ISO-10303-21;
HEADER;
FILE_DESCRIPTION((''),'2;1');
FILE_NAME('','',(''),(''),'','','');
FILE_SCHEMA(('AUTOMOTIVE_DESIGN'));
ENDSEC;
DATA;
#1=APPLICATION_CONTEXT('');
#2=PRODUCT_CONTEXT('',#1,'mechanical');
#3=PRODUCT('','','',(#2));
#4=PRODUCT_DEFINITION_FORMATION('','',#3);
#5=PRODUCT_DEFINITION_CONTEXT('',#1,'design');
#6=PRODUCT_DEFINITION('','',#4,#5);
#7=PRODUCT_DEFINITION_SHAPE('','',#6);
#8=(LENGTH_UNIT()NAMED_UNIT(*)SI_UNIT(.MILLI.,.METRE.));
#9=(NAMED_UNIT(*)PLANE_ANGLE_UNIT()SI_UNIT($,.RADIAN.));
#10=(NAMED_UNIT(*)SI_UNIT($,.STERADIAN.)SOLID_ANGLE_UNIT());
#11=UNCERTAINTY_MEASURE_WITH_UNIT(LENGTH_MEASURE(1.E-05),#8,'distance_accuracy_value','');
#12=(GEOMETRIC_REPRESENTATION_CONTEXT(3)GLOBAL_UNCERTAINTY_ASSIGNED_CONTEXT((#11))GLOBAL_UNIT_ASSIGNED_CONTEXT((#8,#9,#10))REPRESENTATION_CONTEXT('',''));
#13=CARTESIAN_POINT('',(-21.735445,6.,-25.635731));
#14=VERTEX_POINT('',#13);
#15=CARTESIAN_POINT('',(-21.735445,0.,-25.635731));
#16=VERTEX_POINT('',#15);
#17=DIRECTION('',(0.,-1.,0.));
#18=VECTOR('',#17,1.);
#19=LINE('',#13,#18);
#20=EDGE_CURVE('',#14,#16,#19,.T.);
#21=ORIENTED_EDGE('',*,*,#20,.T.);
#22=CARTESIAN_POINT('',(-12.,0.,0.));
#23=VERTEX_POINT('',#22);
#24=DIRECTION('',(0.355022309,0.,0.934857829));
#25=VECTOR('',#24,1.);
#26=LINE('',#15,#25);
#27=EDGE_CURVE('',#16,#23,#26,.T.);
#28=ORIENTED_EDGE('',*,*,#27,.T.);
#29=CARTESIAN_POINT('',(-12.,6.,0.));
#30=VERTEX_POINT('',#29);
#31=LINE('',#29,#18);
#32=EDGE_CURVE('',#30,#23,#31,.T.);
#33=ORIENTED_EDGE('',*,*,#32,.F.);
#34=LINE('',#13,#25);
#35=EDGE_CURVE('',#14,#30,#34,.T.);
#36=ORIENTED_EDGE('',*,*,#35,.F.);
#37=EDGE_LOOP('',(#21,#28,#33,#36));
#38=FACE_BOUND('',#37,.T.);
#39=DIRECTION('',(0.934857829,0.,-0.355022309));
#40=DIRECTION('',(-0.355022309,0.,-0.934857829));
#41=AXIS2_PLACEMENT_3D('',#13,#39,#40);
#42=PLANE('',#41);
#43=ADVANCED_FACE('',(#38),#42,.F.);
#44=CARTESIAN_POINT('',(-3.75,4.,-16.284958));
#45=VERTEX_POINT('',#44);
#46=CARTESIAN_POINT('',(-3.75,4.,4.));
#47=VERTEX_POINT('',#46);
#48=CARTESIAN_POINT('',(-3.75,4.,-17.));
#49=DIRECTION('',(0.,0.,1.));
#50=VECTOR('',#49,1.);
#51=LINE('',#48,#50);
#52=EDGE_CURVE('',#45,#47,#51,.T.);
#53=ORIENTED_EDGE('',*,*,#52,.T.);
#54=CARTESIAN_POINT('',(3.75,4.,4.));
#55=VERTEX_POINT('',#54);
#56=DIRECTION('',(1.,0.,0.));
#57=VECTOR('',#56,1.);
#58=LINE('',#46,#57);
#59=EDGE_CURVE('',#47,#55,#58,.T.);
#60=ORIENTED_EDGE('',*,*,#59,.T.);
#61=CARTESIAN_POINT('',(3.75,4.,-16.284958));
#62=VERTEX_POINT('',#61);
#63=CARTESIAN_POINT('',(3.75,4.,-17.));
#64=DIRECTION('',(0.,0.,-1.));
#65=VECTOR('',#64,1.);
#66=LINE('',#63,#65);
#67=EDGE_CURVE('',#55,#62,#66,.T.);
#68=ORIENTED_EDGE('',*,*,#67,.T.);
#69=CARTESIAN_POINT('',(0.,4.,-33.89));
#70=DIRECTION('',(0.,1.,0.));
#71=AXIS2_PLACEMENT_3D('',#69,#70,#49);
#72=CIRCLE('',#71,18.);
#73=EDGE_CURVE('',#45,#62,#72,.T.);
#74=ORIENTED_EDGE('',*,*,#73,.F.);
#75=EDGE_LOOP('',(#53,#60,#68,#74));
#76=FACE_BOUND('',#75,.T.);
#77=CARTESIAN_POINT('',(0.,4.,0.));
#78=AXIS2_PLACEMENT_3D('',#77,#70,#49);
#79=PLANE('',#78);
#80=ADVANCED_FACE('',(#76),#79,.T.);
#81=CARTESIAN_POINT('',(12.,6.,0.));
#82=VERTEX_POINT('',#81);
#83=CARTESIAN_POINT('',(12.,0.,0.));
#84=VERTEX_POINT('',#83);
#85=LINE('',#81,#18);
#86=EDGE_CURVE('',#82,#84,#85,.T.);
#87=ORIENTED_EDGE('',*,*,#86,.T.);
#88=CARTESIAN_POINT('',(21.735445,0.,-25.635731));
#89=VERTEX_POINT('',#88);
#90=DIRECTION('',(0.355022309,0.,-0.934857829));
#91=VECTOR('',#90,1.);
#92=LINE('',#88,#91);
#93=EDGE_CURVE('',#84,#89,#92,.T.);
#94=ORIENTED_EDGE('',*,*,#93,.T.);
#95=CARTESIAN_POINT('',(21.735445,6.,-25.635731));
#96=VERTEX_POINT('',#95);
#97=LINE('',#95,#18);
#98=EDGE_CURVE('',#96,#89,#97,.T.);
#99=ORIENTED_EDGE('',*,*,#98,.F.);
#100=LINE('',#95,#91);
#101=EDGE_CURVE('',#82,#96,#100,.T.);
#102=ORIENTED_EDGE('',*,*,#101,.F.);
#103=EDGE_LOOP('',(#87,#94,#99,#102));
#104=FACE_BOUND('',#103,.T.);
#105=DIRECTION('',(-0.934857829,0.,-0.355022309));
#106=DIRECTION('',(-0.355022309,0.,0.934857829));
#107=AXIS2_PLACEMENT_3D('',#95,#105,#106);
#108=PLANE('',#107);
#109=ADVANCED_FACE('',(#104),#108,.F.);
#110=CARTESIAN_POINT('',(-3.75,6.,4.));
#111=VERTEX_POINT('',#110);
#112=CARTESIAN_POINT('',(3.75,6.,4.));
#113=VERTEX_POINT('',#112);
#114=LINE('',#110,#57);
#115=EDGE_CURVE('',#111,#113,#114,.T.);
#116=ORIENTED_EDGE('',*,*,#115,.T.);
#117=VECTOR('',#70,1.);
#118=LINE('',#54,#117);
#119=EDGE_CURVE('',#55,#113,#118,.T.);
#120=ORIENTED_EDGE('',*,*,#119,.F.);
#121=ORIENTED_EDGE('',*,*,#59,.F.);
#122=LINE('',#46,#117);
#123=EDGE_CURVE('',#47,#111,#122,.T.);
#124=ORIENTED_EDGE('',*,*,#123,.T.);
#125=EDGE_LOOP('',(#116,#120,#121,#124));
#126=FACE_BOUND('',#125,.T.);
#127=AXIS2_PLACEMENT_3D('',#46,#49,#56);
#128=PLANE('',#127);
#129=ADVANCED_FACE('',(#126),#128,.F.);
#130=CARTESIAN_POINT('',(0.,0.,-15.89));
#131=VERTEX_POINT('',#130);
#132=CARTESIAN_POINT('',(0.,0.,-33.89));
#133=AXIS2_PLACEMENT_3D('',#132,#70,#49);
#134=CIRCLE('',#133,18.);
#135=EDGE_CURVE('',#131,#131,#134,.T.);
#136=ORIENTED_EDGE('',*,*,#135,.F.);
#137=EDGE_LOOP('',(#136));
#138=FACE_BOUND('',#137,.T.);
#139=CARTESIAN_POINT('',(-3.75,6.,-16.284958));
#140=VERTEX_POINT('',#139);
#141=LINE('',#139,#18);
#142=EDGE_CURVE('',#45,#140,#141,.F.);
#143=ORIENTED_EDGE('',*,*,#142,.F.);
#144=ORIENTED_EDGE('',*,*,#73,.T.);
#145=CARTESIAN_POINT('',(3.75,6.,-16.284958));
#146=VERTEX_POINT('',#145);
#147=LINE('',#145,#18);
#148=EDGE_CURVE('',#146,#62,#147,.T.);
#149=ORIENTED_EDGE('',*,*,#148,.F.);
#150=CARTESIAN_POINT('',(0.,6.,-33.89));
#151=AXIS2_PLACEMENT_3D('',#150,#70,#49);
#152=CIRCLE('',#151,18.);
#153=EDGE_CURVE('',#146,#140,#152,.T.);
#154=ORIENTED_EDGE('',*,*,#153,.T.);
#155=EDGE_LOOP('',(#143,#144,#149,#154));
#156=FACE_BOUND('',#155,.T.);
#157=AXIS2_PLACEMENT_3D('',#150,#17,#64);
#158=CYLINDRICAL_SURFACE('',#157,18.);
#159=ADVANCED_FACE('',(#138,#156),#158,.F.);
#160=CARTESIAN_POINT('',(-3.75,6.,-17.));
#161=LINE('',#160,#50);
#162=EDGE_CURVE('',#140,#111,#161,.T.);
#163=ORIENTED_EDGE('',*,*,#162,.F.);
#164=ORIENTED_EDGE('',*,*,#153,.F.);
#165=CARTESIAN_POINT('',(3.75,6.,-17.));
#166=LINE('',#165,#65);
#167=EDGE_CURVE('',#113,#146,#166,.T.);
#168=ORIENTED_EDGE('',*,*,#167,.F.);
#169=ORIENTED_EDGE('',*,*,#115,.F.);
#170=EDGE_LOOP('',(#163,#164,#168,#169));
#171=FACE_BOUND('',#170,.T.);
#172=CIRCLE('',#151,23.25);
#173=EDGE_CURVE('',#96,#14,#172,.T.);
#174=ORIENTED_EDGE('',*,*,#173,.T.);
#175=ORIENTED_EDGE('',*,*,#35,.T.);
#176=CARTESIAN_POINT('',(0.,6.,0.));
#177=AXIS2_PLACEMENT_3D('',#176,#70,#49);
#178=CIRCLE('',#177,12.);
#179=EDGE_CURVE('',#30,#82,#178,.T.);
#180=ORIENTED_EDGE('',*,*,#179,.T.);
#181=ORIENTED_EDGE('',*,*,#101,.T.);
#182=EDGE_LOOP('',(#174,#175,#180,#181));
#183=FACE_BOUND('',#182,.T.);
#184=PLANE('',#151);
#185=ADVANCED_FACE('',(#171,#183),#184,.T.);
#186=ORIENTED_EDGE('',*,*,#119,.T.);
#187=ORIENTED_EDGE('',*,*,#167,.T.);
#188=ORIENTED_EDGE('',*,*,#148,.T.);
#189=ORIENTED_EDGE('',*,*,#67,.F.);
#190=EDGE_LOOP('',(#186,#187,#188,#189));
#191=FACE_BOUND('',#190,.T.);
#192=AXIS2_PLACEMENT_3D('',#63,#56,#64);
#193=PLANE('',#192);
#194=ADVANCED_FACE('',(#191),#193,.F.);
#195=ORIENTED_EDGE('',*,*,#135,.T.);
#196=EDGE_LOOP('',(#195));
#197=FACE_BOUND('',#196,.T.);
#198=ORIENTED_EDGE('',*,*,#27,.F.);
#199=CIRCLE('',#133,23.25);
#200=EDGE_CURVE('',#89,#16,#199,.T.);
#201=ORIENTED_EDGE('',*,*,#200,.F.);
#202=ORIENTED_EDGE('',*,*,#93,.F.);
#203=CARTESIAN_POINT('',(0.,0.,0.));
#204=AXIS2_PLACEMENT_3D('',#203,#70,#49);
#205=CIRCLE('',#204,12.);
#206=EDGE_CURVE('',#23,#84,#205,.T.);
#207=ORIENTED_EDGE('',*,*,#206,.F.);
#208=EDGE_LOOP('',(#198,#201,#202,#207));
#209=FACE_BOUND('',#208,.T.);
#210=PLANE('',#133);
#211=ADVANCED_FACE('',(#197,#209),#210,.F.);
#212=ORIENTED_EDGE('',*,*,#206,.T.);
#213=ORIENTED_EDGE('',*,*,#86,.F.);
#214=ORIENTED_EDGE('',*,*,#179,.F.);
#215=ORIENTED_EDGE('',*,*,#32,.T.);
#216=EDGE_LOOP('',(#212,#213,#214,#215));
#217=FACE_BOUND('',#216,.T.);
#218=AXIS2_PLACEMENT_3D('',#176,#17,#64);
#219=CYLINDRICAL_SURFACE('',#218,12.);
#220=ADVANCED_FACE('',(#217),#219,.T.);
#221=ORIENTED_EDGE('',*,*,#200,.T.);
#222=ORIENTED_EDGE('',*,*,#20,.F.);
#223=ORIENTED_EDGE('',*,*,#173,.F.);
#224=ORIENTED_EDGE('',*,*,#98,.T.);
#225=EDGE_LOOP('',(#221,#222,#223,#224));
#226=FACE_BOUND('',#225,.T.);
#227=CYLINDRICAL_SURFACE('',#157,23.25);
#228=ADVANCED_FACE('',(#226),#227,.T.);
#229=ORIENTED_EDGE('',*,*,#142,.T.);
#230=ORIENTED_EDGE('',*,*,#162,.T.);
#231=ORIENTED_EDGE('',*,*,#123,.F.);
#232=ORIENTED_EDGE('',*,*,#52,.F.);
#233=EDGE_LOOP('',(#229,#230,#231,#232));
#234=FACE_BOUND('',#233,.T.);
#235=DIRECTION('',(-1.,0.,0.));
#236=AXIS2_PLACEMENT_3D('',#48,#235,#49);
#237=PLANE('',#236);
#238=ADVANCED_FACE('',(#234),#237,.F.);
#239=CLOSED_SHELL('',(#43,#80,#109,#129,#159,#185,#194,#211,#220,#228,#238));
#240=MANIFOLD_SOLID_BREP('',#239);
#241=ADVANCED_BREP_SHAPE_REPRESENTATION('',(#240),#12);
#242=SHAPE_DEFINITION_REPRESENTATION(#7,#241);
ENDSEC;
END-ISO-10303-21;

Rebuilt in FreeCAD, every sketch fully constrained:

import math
import FreeCAD as App
import Part
import Sketcher
Q = App.Units.Quantity


def add_polygon(sketch, points):
    """Adds a closed chain of lines whose ends are joined by coincident constraints."""
    first, n = sketch.GeometryCount, len(points)
    for a, b in zip(points, points[1:] + points[:1]):
        sketch.addGeometry(Part.LineSegment(App.Vector(*a, 0), App.Vector(*b, 0)), False)
    for i in range(n):
        sketch.addConstraint(Sketcher.Constraint("Coincident", first + i, 2, first + (i + 1) % n, 1))

doc = App.newDocument("Part")
params = doc.addObject("Spreadsheet::Sheet", "Params")
for row, (alias, value) in enumerate([
    ("sketch1_diameter", "36 mm"),
    ("sketch1_radius", "12 mm"),
    ("sketch1_radius2", "23.25 mm"),
    ("pad1_length", "6 mm"),
    ("sketch2_height", "21 mm"),
    ("sketch2_width", "7.5 mm"),
    ("pocket1_length", "2 mm"),
], start=1):
    params.set(f"A{row}", alias)
    params.set(f"B{row}", "=" + value)
    params.setAlias(f"B{row}", alias)

body = doc.addObject("PartDesign::Body", "Body")

sketch1 = body.newObject("Sketcher::SketchObject", "Sketch")
sketch1.AttachmentSupport = (doc.getObject("XZ_Plane"), [""])
sketch1.MapMode = "FlatFace"
sketch1.addGeometry([
    Part.LineSegment(App.Vector(-22, -26, 0), App.Vector(-12, 0, 0)),
    Part.ArcOfCircle(Part.Circle(App.Vector(0, 0, 0), App.Vector(0, 0, 1), 12), math.radians(0), math.radians(180)),
    Part.LineSegment(App.Vector(12, 0, 0), App.Vector(22, -26, 0)),
    Part.ArcOfCircle(Part.Circle(App.Vector(0, -34, 0), App.Vector(0, 0, 1), 23), math.radians(159), math.radians(381)),
    Part.Circle(App.Vector(0, -34, 0), App.Vector(0, 0, 1), 18),
], False)
sketch1.addConstraint([
    Sketcher.Constraint("Coincident", 0, 2, 1, 2),
    Sketcher.Constraint("Coincident", 1, 1, 2, 1),
    Sketcher.Constraint("Tangent", 2, 2, 3, 2),
    Sketcher.Constraint("Tangent", 3, 1, 0, 1),
    Sketcher.Constraint("Coincident", 1, 3, -1, 1),
    Sketcher.Constraint("Coincident", 4, 3, 3, 3),
    Sketcher.Constraint("Symmetric", 2, 2, 3, 1, -2),
    Sketcher.Constraint("PointOnObject", 0, 2, -1),
    Sketcher.Constraint("Diameter", 4, Q("36 mm")),
    Sketcher.Constraint("Radius", 1, Q("12 mm")),
    Sketcher.Constraint("Radius", 3, Q("23.25 mm")),
    Sketcher.Constraint("DistanceY", 3, 3, -1, 1, Q("33.89 mm")),
])
sketch1.setExpression("Constraints[8]", "Params.sketch1_diameter")
sketch1.setExpression("Constraints[9]", "Params.sketch1_radius")
sketch1.setExpression("Constraints[10]", "Params.sketch1_radius2")
pad1 = body.newObject("PartDesign::Pad", "Pad")
pad1.Profile = sketch1
pad1.setExpression("Length", "Params.pad1_length")
pad1.Reversed = True

sketch2 = body.newObject("Sketcher::SketchObject", "Sketch001")
sketch2.AttachmentSupport = (doc.getObject("XZ_Plane"), [""])
sketch2.MapMode = "FlatFace"
sketch2.AttachmentOffset = App.Placement(App.Vector(0, 0, -6), App.Rotation())
add_polygon(sketch2, [(-4, -17), (-4, 4), (4, 4), (4, -17)])
sketch2.addConstraint([
    Sketcher.Constraint("Vertical", 0),
    Sketcher.Constraint("Horizontal", 1),
    Sketcher.Constraint("Vertical", 2),
    Sketcher.Constraint("Horizontal", 3),
    Sketcher.Constraint("DistanceY", 0, 1, 0, 2, Q("21 mm")),
    Sketcher.Constraint("DistanceX", 1, 1, 1, 2, Q("7.5 mm")),
    Sketcher.Constraint("DistanceY", -1, 1, 0, 2, Q("4 mm")),
    Sketcher.Constraint("DistanceX", 0, 2, -1, 1, Q("3.75 mm")),
])
sketch2.setExpression("Constraints[8]", "Params.sketch2_height")
sketch2.setExpression("Constraints[9]", "Params.sketch2_width")
pocket1 = body.newObject("PartDesign::Pocket", "Pocket")
pocket1.Profile = sketch2
pocket1.setExpression("Length", "Params.pocket1_length")
pocket1.Reversed = True

doc.recompute()
